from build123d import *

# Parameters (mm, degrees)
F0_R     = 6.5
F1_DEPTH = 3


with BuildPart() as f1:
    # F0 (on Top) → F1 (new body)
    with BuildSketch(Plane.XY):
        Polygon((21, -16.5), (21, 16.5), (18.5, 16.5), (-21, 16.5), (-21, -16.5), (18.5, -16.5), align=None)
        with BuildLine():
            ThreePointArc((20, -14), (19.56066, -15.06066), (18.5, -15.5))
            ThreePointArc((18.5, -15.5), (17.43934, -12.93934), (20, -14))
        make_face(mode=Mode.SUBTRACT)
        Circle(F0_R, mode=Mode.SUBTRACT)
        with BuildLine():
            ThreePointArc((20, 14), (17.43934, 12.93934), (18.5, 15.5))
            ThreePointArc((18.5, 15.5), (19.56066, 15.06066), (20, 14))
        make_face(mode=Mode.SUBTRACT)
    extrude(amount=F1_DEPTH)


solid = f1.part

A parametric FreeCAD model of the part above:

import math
import FreeCAD as App
import Part
import Sketcher
from FreeCAD import Vector

doc = App.newDocument("Part")
params = doc.addObject("Spreadsheet::Sheet", "Params")
for row, (alias, value) in enumerate([
    ("sketch1_diameter", "13 mm"),
    ("sketch1_radius", "1.5 mm"),
    ("sketch1_width", "42 mm"),
    ("sketch1_height", "33 mm"),
    ("pad1_length", "3 mm"),
], start=1):
    params.set(f"A{row}", alias)
    params.set(f"B{row}", "=" + value)
    params.setAlias(f"B{row}", alias)

body = doc.addObject("PartDesign::Body", "Body")

sketch1 = doc.addObject("Sketcher::SketchObject", "Sketch")
body.addObject(sketch1)
sketch1.AttachmentSupport = (doc.XY_Plane, [""])
sketch1.MapMode = "FlatFace"
sketch1.addGeometry([
    Part.LineSegment(Vector(21, -16.5, 0), Vector(21, 16.5, 0)),
    Part.LineSegment(Vector(21, 16.5, 0), Vector(-21, 16.5, 0)),
    Part.LineSegment(Vector(-21, 16.5, 0), Vector(-21, -16.5, 0)),
    Part.LineSegment(Vector(-21, -16.5, 0), Vector(21, -16.5, 0)),
    Part.ArcOfCircle(Part.Circle(Vector(18.5, -14, 0), Vector(0, 0, 1), 1.5), math.radians(0.000004), math.radians(269.999996)),
    Part.ArcOfCircle(Part.Circle(Vector(18.499999, -13.999999, 0), Vector(0, 0, 1), 1.500001), math.radians(-89.999978), math.radians(-0.000022)),
    Part.Circle(Vector(0, 0, 0), Vector(0, 0, 1), 6.5),
    Part.ArcOfCircle(Part.Circle(Vector(18.499999, 13.999999, 0), Vector(0, 0, 1), 1.500001), math.radians(0.000022), math.radians(89.999978)),
    Part.ArcOfCircle(Part.Circle(Vector(18.5, 14, 0), Vector(0, 0, 1), 1.5), math.radians(90.000004), math.radians(359.999996)),
], False)
sketch1.addConstraint([
    Sketcher.Constraint("Coincident", 0, 2, 1, 1),
    Sketcher.Constraint("Coincident", 1, 2, 2, 1),
    Sketcher.Constraint("Coincident", 2, 2, 3, 1),
    Sketcher.Constraint("Coincident", 3, 2, 0, 1),
    Sketcher.Constraint("Tangent", 4, 1, 5, 2),
    Sketcher.Constraint("Coincident", 5, 1, 4, 2),
    Sketcher.Constraint("Tangent", 7, 1, 8, 2),
    Sketcher.Constraint("Coincident", 8, 1, 7, 2),
    Sketcher.Constraint("Vertical", 0),
    Sketcher.Constraint("Horizontal", 1),
    Sketcher.Constraint("Vertical", 2),
    Sketcher.Constraint("Horizontal", 3),
    Sketcher.Constraint("Coincident", 6, 3, -1, 1),
    Sketcher.Constraint("Equal", 5, 7),
    Sketcher.Constraint("Symmetric", 0, 2, 2, 2, -1, 1),
    Sketcher.Constraint("Symmetric", 4, 3, 7, 3, -1),
    Sketcher.Constraint("Horizontal", 5, 3, 4, 1),
    Sketcher.Constraint("Horizontal", 8, 3, 7, 1),
    Sketcher.Constraint("Vertical", 8, 3, 5, 1),
    Sketcher.Constraint("Vertical", 5, 1, 8, 1),
    Sketcher.Constraint("Diameter", 6, 13.0),
    Sketcher.Constraint("Radius", 4, 1.5),
    Sketcher.Constraint("DistanceX", 1, 2, 1, 1, 42.0),
    Sketcher.Constraint("DistanceY", 0, 1, 0, 2, 33.0),
    Sketcher.Constraint("DistanceY", 4, 3, -1, 1, 14.0),
    Sketcher.Constraint("DistanceX", -1, 1, 4, 1, 20.0),
])
sketch1.setExpression("Constraints[20]", "Params.sketch1_diameter")
sketch1.setExpression("Constraints[21]", "Params.sketch1_radius")
sketch1.setExpression("Constraints[22]", "Params.sketch1_width")
sketch1.setExpression("Constraints[23]", "Params.sketch1_height")
pad1 = doc.addObject("PartDesign::Pad", "Pad")
body.addObject(pad1)
pad1.Profile = sketch1
pad1.setExpression("Length", "Params.pad1_length")

doc.recompute()
